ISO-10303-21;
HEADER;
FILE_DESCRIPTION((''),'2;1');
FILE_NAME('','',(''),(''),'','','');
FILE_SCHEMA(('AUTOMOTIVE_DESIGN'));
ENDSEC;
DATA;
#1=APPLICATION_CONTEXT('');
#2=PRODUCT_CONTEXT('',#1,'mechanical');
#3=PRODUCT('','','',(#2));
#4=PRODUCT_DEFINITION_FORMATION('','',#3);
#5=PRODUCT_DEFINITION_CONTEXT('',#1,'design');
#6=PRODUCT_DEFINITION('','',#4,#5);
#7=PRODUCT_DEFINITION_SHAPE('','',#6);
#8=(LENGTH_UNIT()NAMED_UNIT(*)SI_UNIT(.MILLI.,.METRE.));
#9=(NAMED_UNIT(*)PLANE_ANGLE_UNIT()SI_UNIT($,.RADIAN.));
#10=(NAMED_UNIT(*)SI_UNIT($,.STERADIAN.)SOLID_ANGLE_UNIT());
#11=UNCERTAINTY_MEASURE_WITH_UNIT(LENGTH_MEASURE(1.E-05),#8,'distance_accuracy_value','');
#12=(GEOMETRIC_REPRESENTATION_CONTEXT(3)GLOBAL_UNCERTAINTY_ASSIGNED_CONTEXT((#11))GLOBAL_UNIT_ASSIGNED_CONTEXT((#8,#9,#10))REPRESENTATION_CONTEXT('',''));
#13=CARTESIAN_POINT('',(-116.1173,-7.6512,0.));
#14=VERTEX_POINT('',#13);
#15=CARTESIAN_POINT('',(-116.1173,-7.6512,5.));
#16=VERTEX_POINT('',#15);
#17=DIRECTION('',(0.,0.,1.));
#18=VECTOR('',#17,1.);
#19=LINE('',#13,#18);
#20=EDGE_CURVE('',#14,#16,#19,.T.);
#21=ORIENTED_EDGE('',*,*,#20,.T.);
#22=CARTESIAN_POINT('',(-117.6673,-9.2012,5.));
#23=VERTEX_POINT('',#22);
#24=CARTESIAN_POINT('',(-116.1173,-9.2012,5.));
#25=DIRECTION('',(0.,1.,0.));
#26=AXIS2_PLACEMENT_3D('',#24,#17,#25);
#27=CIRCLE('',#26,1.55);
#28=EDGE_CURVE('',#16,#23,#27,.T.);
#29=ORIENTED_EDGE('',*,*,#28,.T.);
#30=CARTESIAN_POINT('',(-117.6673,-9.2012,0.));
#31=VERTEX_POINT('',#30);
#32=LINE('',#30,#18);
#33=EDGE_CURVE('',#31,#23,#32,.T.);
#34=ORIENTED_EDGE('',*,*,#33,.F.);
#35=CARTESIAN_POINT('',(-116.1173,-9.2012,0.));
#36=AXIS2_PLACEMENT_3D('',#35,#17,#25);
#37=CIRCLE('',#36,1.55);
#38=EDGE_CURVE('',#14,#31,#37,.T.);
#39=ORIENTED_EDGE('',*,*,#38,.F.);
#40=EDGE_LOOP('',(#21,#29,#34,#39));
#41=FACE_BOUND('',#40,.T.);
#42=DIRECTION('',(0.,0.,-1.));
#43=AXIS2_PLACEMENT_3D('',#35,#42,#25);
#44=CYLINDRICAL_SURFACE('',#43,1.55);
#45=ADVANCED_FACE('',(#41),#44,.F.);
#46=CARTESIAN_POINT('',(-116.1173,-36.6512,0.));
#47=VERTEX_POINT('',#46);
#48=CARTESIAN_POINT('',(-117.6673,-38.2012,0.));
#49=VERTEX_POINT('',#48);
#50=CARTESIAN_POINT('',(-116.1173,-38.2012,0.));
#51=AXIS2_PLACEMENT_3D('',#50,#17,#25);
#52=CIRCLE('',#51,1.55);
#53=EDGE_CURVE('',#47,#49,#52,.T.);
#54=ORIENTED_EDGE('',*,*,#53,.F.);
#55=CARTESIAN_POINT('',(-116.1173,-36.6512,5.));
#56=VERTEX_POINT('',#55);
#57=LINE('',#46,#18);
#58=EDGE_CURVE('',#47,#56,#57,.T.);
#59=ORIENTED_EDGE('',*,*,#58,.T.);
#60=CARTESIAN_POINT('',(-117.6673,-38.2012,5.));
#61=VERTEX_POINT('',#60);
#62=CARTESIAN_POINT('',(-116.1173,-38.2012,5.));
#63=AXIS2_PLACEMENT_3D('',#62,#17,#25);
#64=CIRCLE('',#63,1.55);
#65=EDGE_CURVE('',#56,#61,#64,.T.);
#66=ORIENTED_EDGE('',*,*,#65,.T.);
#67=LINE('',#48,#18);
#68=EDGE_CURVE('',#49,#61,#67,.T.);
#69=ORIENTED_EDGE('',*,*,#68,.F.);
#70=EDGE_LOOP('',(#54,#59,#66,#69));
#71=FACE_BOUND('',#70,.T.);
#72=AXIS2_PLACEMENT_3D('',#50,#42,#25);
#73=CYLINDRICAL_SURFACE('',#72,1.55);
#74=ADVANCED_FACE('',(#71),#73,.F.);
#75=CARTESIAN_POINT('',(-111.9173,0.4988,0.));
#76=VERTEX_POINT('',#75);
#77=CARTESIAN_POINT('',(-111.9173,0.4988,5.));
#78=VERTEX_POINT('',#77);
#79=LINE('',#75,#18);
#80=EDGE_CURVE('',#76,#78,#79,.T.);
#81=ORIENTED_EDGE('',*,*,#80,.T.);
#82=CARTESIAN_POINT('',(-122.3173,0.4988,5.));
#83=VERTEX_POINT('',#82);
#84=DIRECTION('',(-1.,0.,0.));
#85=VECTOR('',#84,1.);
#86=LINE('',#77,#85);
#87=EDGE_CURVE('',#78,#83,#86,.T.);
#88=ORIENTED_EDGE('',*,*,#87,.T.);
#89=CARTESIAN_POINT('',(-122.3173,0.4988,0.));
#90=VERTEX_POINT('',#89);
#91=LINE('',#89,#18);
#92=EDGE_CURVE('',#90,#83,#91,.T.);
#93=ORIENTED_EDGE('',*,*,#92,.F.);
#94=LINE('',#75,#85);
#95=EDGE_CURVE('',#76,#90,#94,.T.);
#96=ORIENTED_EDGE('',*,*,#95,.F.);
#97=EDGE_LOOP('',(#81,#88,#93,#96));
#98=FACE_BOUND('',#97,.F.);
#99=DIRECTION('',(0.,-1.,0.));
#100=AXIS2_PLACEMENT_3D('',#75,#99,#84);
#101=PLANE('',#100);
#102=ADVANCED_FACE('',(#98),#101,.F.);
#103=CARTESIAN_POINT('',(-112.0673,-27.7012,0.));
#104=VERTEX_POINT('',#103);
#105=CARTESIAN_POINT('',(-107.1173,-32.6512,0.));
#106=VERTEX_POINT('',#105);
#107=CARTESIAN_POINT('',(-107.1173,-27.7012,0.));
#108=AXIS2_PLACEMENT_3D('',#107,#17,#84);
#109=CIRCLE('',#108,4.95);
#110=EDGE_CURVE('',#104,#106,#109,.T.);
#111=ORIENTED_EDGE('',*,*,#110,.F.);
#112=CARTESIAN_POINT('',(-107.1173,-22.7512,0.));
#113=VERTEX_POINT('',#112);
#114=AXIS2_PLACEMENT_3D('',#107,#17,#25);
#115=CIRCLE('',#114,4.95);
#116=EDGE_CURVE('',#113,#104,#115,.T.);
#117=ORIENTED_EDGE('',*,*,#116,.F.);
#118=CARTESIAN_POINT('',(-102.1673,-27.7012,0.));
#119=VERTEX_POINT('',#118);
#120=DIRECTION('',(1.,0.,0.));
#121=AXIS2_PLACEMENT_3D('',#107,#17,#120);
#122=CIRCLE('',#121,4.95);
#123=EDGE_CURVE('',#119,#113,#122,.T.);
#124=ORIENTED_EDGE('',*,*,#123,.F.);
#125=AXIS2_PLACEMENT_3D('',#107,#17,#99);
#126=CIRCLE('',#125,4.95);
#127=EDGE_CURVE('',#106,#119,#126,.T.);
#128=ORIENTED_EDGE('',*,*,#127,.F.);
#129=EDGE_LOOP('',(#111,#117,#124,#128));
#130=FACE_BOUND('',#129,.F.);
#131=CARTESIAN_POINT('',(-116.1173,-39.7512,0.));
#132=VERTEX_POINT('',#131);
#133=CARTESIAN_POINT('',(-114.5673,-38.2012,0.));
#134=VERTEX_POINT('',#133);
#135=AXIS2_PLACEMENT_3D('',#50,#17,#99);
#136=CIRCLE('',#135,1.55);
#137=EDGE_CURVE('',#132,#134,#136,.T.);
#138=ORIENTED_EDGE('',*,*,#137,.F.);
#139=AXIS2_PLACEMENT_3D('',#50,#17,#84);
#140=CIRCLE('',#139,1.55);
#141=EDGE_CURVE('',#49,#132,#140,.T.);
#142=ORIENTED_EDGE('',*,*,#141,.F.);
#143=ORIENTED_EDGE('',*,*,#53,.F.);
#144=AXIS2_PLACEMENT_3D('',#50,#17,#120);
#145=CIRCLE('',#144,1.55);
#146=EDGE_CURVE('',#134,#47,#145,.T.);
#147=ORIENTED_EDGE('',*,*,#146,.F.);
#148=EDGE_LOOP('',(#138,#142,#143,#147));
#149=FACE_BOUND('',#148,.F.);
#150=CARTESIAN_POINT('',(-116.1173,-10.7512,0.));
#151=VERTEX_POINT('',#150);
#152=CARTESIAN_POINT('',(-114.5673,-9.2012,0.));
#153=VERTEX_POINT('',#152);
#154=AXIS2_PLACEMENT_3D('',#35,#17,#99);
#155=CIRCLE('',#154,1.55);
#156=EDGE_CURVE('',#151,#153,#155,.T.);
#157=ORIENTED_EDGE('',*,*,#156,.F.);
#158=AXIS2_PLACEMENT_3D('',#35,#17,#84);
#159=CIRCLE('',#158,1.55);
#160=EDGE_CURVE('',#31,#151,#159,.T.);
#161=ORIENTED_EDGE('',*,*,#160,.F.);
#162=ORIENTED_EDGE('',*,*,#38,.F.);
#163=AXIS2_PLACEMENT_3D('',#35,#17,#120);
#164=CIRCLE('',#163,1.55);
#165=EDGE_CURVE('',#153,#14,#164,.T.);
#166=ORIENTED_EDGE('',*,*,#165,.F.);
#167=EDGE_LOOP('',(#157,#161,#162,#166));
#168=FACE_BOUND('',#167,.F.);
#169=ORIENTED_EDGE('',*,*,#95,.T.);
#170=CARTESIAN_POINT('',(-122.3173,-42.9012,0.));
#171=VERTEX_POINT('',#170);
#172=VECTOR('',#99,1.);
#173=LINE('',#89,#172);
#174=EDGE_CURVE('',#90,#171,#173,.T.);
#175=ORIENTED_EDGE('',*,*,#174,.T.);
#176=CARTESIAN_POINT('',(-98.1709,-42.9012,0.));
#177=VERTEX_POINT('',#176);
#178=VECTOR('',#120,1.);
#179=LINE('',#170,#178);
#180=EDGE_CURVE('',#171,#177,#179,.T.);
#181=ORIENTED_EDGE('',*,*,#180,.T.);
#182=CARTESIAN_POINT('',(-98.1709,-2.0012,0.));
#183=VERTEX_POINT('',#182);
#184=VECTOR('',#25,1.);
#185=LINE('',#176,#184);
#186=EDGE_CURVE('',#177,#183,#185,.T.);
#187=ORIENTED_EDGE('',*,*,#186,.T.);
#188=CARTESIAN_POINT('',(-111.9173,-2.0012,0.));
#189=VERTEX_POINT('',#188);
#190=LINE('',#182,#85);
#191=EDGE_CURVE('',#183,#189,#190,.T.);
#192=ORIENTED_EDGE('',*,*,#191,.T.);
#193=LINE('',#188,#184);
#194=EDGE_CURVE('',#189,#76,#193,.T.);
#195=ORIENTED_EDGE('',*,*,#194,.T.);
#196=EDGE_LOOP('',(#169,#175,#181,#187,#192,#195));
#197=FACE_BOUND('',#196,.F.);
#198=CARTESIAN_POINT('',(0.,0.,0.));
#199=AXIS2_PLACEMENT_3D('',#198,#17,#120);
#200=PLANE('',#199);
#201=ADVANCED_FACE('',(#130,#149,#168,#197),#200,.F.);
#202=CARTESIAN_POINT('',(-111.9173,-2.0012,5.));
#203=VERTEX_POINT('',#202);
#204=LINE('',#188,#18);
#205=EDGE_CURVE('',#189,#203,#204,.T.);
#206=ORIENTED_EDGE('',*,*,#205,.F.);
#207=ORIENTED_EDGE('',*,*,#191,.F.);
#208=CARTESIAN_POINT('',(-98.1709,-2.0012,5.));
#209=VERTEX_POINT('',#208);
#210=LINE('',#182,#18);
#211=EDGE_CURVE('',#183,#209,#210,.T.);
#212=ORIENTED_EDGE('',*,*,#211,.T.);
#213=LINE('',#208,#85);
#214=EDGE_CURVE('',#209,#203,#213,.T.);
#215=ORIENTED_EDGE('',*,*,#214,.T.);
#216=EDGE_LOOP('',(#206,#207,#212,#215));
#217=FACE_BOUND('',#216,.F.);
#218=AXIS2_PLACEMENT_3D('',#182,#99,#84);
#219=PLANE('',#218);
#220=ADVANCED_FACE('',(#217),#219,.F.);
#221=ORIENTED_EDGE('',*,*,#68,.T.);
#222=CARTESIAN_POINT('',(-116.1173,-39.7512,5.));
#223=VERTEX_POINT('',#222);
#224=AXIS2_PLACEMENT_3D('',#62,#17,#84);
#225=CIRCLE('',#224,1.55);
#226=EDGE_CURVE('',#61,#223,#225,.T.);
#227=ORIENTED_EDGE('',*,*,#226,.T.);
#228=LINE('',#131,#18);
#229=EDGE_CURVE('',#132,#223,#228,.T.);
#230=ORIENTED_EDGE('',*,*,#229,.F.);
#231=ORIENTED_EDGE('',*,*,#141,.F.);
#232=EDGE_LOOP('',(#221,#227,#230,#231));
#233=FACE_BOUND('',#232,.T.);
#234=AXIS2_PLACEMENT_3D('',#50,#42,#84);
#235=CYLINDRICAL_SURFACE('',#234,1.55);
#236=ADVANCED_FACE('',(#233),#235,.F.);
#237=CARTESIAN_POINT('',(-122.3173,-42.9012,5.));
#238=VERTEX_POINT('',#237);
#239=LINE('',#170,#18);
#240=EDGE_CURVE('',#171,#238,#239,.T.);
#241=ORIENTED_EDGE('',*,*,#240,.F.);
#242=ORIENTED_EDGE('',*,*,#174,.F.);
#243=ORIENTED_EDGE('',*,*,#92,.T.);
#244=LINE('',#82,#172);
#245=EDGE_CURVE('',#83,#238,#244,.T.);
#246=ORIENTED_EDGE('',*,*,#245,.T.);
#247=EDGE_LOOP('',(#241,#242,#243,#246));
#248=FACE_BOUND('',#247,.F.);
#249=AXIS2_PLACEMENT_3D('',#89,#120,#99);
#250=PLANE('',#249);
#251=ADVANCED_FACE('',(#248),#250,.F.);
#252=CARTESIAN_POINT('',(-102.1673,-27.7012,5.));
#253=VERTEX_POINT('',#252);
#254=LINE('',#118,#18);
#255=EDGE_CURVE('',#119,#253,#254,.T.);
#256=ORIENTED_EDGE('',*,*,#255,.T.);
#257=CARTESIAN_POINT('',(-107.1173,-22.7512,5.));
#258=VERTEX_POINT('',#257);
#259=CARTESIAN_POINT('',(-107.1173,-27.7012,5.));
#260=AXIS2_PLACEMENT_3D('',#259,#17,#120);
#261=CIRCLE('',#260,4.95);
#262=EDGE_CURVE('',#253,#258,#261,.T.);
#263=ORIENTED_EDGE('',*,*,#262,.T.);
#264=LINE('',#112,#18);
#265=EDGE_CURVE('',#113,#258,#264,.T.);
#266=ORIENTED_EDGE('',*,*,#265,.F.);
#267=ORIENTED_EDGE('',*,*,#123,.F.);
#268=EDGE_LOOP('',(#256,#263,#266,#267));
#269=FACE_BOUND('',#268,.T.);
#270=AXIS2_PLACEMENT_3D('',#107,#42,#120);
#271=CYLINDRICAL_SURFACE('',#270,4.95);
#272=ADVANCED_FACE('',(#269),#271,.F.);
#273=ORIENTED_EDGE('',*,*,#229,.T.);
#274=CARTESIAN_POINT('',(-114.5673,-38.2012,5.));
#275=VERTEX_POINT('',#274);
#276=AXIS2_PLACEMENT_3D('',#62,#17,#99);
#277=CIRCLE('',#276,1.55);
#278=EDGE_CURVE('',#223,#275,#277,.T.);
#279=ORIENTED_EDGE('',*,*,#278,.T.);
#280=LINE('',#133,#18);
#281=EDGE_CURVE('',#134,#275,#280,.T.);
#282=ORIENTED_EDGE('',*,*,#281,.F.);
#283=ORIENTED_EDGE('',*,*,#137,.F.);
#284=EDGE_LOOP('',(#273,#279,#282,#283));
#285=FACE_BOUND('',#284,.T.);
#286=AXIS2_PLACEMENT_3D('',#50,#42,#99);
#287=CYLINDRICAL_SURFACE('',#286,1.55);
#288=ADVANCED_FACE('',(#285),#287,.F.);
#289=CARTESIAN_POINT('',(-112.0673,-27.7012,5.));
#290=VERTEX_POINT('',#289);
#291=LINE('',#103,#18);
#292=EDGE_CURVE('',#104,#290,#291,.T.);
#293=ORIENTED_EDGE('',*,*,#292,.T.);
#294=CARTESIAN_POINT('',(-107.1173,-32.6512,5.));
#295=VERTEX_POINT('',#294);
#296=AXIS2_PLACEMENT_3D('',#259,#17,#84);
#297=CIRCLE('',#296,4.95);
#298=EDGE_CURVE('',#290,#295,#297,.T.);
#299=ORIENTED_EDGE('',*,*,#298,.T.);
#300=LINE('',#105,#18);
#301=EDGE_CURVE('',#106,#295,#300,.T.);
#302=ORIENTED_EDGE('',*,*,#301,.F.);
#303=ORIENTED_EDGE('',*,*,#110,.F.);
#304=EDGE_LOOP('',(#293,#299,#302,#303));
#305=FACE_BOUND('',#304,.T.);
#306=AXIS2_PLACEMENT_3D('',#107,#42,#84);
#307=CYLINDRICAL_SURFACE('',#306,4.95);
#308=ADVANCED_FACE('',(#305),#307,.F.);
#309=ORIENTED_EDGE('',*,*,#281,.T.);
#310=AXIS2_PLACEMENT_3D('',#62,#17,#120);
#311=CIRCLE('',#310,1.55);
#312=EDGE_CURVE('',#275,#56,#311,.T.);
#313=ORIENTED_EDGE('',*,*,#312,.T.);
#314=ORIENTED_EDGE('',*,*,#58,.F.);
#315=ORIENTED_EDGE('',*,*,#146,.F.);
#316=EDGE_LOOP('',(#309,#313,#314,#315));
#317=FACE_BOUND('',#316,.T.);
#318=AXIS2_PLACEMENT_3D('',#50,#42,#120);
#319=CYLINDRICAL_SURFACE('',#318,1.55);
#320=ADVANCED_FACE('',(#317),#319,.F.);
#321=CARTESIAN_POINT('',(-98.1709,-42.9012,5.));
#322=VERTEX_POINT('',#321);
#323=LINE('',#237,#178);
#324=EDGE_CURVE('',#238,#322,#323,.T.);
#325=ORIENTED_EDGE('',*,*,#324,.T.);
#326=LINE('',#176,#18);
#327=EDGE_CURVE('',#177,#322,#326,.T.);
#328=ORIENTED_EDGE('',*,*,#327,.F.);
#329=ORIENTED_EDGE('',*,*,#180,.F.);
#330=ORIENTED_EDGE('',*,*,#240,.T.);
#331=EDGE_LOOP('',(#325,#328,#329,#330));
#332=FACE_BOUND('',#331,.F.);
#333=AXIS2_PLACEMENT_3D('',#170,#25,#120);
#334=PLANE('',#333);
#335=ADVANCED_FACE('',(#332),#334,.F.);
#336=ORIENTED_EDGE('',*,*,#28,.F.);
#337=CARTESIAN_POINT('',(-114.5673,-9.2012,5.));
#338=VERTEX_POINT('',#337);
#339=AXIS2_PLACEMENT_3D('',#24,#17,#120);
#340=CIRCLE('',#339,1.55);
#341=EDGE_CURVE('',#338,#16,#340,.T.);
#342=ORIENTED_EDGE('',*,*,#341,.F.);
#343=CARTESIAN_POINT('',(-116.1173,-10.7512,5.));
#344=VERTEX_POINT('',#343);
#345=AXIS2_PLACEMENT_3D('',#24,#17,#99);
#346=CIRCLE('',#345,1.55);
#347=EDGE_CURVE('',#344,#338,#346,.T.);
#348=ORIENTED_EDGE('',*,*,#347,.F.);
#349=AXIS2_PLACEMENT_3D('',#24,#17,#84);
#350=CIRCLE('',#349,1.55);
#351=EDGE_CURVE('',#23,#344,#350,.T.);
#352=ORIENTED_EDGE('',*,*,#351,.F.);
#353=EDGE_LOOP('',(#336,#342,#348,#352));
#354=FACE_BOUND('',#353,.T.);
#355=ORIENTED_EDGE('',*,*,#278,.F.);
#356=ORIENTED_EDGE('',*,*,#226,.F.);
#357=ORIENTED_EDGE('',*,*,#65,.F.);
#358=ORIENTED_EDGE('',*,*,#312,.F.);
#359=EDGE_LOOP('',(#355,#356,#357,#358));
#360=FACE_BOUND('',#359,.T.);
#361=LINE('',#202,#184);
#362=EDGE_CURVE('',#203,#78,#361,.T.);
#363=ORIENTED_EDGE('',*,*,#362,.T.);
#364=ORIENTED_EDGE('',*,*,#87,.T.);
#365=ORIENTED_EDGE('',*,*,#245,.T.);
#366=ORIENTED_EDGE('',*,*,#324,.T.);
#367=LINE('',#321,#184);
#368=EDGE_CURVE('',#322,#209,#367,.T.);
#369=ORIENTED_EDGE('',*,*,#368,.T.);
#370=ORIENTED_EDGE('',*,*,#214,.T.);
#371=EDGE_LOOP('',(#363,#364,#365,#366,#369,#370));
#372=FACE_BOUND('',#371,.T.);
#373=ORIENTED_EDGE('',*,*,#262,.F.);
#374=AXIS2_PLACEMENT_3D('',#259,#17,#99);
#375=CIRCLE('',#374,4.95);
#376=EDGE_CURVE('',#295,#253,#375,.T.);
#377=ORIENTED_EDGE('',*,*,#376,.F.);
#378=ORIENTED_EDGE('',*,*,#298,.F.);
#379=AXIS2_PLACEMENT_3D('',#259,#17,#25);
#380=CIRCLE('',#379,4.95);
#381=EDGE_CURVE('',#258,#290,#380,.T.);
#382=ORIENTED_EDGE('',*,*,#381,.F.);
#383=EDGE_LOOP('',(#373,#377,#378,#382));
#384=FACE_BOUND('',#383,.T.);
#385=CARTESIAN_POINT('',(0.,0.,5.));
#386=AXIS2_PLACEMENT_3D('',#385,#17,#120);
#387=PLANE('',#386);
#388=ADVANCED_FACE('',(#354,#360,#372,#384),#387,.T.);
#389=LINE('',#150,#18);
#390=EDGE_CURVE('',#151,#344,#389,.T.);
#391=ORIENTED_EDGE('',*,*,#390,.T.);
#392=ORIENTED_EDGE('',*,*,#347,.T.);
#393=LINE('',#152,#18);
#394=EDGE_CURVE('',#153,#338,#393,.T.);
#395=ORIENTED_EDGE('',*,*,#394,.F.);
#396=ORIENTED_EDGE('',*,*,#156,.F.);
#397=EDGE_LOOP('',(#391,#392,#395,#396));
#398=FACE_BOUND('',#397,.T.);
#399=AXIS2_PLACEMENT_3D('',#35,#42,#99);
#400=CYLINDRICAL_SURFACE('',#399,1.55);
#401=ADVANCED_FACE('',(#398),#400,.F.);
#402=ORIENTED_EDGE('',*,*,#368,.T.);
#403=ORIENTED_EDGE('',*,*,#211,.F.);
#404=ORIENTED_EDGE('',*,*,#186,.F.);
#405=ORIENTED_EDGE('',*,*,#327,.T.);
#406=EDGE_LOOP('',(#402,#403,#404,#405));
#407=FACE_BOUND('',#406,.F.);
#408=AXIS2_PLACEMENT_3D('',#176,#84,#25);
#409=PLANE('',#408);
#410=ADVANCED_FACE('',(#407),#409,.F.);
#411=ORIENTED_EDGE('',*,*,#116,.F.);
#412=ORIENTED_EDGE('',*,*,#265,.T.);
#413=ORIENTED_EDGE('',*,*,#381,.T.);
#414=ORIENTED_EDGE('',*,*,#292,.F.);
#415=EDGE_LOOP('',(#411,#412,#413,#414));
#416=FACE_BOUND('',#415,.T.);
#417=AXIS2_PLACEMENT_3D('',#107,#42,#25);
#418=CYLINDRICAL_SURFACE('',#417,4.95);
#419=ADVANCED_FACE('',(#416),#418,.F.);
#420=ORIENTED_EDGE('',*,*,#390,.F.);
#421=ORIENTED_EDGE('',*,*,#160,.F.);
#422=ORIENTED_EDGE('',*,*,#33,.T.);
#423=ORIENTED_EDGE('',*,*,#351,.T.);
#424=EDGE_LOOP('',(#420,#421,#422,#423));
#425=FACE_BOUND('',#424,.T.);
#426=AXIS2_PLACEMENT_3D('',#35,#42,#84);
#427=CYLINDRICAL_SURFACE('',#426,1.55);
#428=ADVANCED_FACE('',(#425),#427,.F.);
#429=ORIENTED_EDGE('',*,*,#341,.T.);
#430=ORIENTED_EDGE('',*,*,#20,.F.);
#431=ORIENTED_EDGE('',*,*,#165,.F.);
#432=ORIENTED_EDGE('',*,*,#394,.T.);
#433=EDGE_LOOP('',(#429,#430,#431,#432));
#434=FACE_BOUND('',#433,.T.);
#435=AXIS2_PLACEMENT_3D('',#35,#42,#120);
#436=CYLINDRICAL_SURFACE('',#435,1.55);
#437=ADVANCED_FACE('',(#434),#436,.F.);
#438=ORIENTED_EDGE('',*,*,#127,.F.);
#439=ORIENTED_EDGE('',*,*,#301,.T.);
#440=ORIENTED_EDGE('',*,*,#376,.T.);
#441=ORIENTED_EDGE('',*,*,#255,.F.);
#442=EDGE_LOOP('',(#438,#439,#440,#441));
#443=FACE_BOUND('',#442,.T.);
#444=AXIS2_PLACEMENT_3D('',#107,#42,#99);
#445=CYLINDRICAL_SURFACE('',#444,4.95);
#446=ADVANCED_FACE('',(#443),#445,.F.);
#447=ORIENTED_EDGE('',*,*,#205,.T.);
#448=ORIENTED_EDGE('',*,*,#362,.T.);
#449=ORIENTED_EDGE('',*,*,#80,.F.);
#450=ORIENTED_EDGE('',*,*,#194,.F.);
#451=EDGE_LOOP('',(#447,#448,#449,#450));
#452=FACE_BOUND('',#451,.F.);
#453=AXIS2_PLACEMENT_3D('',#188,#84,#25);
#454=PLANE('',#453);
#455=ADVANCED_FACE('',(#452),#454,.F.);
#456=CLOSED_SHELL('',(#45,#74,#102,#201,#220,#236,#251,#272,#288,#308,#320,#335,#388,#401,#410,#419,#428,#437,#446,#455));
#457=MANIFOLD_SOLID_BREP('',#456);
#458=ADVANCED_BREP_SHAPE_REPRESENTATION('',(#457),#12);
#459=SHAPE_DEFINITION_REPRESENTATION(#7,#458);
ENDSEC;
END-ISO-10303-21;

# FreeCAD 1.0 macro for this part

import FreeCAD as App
import Part
import Sketcher

doc = App.newDocument("Part")
params = doc.addObject("Spreadsheet::Sheet", "Params")
for row, (alias, value) in enumerate([
    ("sketch1_diameter", "3.1 mm"),
    ("sketch1_diameter2", "9.9 mm"),
    ("sketch1_width", "10.4 mm"),
    ("sketch1_height", "40.9 mm"),
    ("sketch1_height2", "2.5 mm"),
    ("pad1_length", "5 mm"),
], start=1):
    params.set(f"A{row}", alias)
    params.set(f"B{row}", "=" + value)
    params.setAlias(f"B{row}", alias)

body = doc.addObject("PartDesign::Body", "Body")

# Sketch on XY plane
sketch1 = body.newObject("Sketcher::SketchObject", "Sketch")
sketch1.AttachmentSupport = (doc.getObject("XY_Plane"), [""])
sketch1.MapMode = "FlatFace"
sketch1.addGeometry([
    Part.LineSegment(App.Vector(-98.2, -42.9, 0), App.Vector(-98.2, -2, 0)),  # 0
    Part.LineSegment(App.Vector(-98.2, -2, 0), App.Vector(-111.9, -2, 0)),  # 1
    Part.LineSegment(App.Vector(-111.9, -2, 0), App.Vector(-111.9, 0.5, 0)),  # 2
    Part.LineSegment(App.Vector(-111.9, 0.5, 0), App.Vector(-122.3, 0.5, 0)),  # 3
    Part.LineSegment(App.Vector(-122.3, 0.5, 0), App.Vector(-122.3, -42.9, 0)),  # 4
    Part.LineSegment(App.Vector(-122.3, -42.9, 0), App.Vector(-98.2, -42.9, 0)),  # 5
    Part.Circle(App.Vector(-116.1, -38.2, 0), App.Vector(0, 0, 1), 1.5),  # 6
    Part.Circle(App.Vector(-107.1, -27.7, 0), App.Vector(0, 0, 1), 4.9),  # 7
    Part.Circle(App.Vector(-116.1, -9.2, 0), App.Vector(0, 0, 1), 1.5),  # 8
], False)
sketch1.addConstraint([
    Sketcher.Constraint("Coincident", 0, 2, 1, 1),
    Sketcher.Constraint("Coincident", 1, 2, 2, 1),
    Sketcher.Constraint("Coincident", 2, 2, 3, 1),
    Sketcher.Constraint("Coincident", 3, 2, 4, 1),
    Sketcher.Constraint("Coincident", 4, 2, 5, 1),
    Sketcher.Constraint("Coincident", 5, 2, 0, 1),
    Sketcher.Constraint("Vertical", 0),
    Sketcher.Constraint("Horizontal", 1),
    Sketcher.Constraint("Vertical", 2),
    Sketcher.Constraint("Horizontal", 3),
    Sketcher.Constraint("Vertical", 4),
    Sketcher.Constraint("Horizontal", 5),
    Sketcher.Constraint("Equal", 6, 8),
    Sketcher.Constraint("Vertical", 6, 3, 8, 3),
    Sketcher.Constraint("Diameter", 6, 3.1),
    Sketcher.Constraint("Diameter", 7, 9.9),
    Sketcher.Constraint("DistanceX", 3, 2, 3, 1, 10.4),
    Sketcher.Constraint("DistanceY", 0, 1, 0, 2, 40.9),
    Sketcher.Constraint("DistanceY", 2, 1, 2, 2, 2.5),
    Sketcher.Constraint("DistanceX", 6, 3, 7, 3, 9.0),
    Sketcher.Constraint("DistanceY", 6, 3, 8, 3, 29.0),
    Sketcher.Constraint("DistanceY", 6, 3, 7, 3, 10.5),
    Sketcher.Constraint("DistanceY", 8, 3, 0, 2, 7.2),
    Sketcher.Constraint("DistanceX", 8, 3, 1, 2, 4.2),
    Sketcher.Constraint("DistanceX", 1, 2, 1, 1, 13.7464),
    Sketcher.Constraint("DistanceX", 0, 2, -1, 1, 98.171),
    Sketcher.Constraint("DistanceY", 6, 3, -1, 1, 38.2012),
])
sketch1.setExpression("Constraints[14]", "Params.sketch1_diameter")
sketch1.setExpression("Constraints[15]", "Params.sketch1_diameter2")
sketch1.setExpression("Constraints[16]", "Params.sketch1_width")
sketch1.setExpression("Constraints[17]", "Params.sketch1_height")
sketch1.setExpression("Constraints[18]", "Params.sketch1_height2")
pad1 = body.newObject("PartDesign::Pad", "Pad")
pad1.Profile = sketch1
pad1.setExpression("Length", "Params.pad1_length")

doc.recompute()
